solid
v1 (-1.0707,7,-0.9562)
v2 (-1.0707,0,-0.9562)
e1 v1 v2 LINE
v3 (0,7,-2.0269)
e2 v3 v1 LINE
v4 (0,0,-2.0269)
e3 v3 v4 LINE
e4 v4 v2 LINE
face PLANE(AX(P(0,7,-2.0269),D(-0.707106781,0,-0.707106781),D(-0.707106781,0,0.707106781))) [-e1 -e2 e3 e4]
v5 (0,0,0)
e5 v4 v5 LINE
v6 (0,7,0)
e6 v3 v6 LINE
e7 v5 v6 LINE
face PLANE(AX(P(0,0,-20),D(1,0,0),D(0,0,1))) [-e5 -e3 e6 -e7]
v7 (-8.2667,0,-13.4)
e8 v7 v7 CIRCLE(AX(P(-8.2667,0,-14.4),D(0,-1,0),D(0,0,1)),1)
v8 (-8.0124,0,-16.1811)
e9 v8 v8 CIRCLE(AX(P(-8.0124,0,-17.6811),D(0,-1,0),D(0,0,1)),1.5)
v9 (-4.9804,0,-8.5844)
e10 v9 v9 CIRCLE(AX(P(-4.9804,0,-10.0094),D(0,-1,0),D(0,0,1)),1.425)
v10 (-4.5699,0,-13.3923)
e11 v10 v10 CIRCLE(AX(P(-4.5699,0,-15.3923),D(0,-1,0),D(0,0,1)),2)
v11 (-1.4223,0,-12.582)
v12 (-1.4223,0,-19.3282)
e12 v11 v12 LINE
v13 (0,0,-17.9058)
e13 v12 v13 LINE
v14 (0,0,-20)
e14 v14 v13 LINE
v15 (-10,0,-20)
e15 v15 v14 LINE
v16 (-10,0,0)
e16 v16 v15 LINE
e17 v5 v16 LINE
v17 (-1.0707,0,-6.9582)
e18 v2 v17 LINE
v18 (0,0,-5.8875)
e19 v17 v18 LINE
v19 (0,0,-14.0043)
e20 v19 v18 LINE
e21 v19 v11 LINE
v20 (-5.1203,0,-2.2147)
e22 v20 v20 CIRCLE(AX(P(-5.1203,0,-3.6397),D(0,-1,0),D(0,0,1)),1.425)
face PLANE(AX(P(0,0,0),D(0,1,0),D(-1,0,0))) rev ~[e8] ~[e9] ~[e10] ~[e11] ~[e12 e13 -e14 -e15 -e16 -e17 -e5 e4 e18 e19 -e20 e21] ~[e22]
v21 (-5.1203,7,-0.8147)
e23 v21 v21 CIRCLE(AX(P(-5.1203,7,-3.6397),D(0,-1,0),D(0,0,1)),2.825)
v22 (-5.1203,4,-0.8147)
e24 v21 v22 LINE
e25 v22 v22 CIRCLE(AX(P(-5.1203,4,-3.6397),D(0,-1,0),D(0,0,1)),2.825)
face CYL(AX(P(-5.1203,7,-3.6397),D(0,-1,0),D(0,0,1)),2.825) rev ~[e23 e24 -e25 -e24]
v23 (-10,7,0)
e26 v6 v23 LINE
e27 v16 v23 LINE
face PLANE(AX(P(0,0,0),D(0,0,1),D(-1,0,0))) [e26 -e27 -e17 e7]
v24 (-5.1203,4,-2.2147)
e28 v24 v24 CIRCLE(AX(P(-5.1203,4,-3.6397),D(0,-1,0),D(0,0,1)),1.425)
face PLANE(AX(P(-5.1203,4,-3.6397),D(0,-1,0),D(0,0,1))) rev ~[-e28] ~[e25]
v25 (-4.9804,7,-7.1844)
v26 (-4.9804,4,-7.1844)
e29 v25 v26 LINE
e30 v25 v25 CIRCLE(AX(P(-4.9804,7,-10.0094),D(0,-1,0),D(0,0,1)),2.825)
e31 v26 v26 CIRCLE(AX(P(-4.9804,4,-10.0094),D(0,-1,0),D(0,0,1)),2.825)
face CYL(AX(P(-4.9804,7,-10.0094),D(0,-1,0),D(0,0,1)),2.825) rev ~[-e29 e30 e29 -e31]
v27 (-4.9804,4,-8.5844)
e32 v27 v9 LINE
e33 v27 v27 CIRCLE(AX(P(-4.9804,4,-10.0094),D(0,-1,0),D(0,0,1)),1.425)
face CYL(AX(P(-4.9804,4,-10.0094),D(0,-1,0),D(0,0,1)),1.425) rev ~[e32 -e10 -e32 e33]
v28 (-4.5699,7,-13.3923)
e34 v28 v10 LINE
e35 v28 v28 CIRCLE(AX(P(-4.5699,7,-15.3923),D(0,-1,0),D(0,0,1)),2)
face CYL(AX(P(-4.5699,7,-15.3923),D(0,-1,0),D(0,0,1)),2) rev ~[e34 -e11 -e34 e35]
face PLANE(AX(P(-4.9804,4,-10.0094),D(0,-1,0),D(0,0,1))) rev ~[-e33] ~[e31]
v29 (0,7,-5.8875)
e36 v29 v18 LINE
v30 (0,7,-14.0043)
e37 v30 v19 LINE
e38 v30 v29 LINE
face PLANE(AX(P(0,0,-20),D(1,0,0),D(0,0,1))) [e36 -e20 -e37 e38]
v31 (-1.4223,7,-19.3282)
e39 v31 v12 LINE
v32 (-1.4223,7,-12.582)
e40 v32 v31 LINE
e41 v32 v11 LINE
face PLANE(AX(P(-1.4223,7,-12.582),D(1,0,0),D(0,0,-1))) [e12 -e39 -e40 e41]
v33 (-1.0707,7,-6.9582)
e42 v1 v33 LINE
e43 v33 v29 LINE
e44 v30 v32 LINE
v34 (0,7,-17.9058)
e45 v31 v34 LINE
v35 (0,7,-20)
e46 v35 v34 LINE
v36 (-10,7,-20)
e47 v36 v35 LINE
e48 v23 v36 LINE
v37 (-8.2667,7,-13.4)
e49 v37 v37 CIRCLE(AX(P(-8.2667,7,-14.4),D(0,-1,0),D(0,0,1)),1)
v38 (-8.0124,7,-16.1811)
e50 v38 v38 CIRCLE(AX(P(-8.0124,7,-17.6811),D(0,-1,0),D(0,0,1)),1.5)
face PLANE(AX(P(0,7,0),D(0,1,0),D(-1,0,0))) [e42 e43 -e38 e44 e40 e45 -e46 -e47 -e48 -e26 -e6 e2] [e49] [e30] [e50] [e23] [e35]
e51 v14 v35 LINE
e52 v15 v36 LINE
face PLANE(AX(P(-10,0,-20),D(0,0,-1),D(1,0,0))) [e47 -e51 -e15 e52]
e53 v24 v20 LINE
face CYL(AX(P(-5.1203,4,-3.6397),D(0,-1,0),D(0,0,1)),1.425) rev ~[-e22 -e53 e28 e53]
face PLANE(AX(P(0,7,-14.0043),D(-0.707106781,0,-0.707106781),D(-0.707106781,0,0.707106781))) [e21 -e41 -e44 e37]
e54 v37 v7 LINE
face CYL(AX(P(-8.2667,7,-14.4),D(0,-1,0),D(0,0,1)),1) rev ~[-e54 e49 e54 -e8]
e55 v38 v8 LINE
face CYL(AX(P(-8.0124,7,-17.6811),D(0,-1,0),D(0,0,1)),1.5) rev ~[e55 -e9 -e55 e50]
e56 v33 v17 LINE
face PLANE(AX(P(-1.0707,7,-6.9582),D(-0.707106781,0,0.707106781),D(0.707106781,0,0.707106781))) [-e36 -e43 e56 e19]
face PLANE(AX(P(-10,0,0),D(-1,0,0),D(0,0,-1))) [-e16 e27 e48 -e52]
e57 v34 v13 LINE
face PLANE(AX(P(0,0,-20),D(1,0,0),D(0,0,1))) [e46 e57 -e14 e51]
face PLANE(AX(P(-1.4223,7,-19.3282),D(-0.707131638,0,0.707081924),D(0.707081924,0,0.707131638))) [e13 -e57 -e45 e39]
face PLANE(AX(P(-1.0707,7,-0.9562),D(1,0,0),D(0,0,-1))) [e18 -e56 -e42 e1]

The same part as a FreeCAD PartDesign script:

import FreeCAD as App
import Part
import Sketcher
from FreeCAD import Vector
Q = App.Units.Quantity


def add_polygon(sketch, points):
    """Adds a closed chain of lines whose ends are joined by coincident constraints."""
    first, n = sketch.GeometryCount, len(points)
    for a, b in zip(points, points[1:] + points[:1]):
        sketch.addGeometry(Part.LineSegment(App.Vector(*a, 0), App.Vector(*b, 0)), False)
    for i in range(n):
        sketch.addConstraint(Sketcher.Constraint("Coincident", first + i, 2, first + (i + 1) % n, 1))

doc = App.newDocument("Part")
params = doc.addObject("Spreadsheet::Sheet", "Params")
for row, (alias, value) in enumerate([
    ("sketch1_width", "10 mm"),
    ("sketch1_height", "20 mm"),
    ("pad1_length", "7 mm"),
    ("sketch2_diameter", "2.85 mm"),
    ("hole_diameter", "2.85 mm"),
    ("hole_depth", "13.15 mm"),
    ("hole_cbore_diameter", "5.65 mm"),
    ("hole_cbore_depth", "3 mm"),
    ("sketch3_diameter", "2.85 mm"),
    ("hole2_diameter", "2.85 mm"),
    ("hole2_depth", "9.05 mm"),
    ("hole2_cbore_diameter", "5.65 mm"),
    ("hole2_cbore_depth", "3 mm"),
    ("sketch4_diameter", "3 mm"),
    ("hole3_diameter", "3 mm"),
    ("sketch5_diameter", "2 mm"),
    ("hole4_diameter", "2 mm"),
    ("sketch6_diameter", "4 mm"),
    ("hole5_diameter", "4 mm"),
    ("pocket2_length", "7 mm"),
], start=1):
    params.set(f"A{row}", alias)
    params.set(f"B{row}", "=" + value)
    params.setAlias(f"B{row}", alias)

body = doc.addObject("PartDesign::Body", "Body")

sketch1 = body.newObject("Sketcher::SketchObject", "Sketch")
sketch1.AttachmentSupport = (doc.getObject("XZ_Plane"), [""])
sketch1.MapMode = "FlatFace"
add_polygon(sketch1, [(-10, 0), (0, 0), (0, -20), (-10, -20)])
sketch1.addConstraint(Sketcher.Constraint("Horizontal", 0))
sketch1.addConstraint(Sketcher.Constraint("Vertical", 1))
sketch1.addConstraint(Sketcher.Constraint("Horizontal", 2))
sketch1.addConstraint(Sketcher.Constraint("Vertical", 3))
sketch1.addConstraint(Sketcher.Constraint("Coincident", 0, 2, -1, 1))
sketch1.addConstraint(Sketcher.Constraint("DistanceX", 0, 1, 0, 2, Q("10 mm")))
sketch1.addConstraint(Sketcher.Constraint("DistanceY", 1, 2, 1, 1, Q("20 mm")))
sketch1.setExpression("Constraints[9]", "Params.sketch1_width")
sketch1.setExpression("Constraints[10]", "Params.sketch1_height")
pad1 = body.newObject("PartDesign::Pad", "Pad")
pad1.Profile = sketch1
pad1.setExpression("Length", "Params.pad1_length")
pad1.Reversed = True

sketch2 = body.newObject("Sketcher::SketchObject", "Sketch001")
sketch2.AttachmentSupport = (doc.getObject("XZ_Plane"), [""])
sketch2.MapMode = "FlatFace"
sketch2.AttachmentOffset = App.Placement(Vector(0, 0, -7), App.Rotation())
sketch2.addGeometry(Part.Circle(Vector(-5.1203, -3.6397, 0), Vector(0, 0, 1), 1.425), False)
sketch2.addConstraint(Sketcher.Constraint("Diameter", 0, Q("2.85 mm")))
sketch2.addConstraint(Sketcher.Constraint("DistanceX", 0, 3, -1, 1, Q("5.1203 mm")))
sketch2.addConstraint(Sketcher.Constraint("DistanceY", 0, 3, -1, 1, Q("3.6397 mm")))
sketch2.setExpression("Constraints[0]", "Params.sketch2_diameter")
doc.recompute()
hole = body.newObject("PartDesign::Hole", "Hole")
hole.Profile = sketch2
hole.ThreadType = "None"
hole.setExpression("Diameter", "Params.hole_diameter")
hole.DepthType = "Dimension"
hole.setExpression("Depth", "Params.hole_depth")
hole.DrillPoint = "Flat"
hole.HoleCutType = "Counterbore"
hole.setExpression("HoleCutDiameter", "Params.hole_cbore_diameter")
hole.setExpression("HoleCutDepth", "Params.hole_cbore_depth")
hole.Reversed = True

sketch3 = body.newObject("Sketcher::SketchObject", "Sketch002")
sketch3.AttachmentSupport = (doc.getObject("XZ_Plane"), [""])
sketch3.MapMode = "FlatFace"
sketch3.AttachmentOffset = App.Placement(Vector(0, 0, -7), App.Rotation())
sketch3.addGeometry(Part.Circle(Vector(-4.9804, -10.0094, 0), Vector(0, 0, 1), 1.425), False)
sketch3.addConstraint(Sketcher.Constraint("Diameter", 0, Q("2.85 mm")))
sketch3.addConstraint(Sketcher.Constraint("DistanceX", 0, 3, -1, 1, Q("4.9804 mm")))
sketch3.addConstraint(Sketcher.Constraint("DistanceY", 0, 3, -1, 1, Q("10.0094 mm")))
sketch3.setExpression("Constraints[0]", "Params.sketch3_diameter")
doc.recompute()
hole2 = body.newObject("PartDesign::Hole", "Hole001")
hole2.Profile = sketch3
hole2.ThreadType = "None"
hole2.setExpression("Diameter", "Params.hole2_diameter")
hole2.DepthType = "Dimension"
hole2.setExpression("Depth", "Params.hole2_depth")
hole2.DrillPoint = "Flat"
hole2.HoleCutType = "Counterbore"
hole2.setExpression("HoleCutDiameter", "Params.hole2_cbore_diameter")
hole2.setExpression("HoleCutDepth", "Params.hole2_cbore_depth")
hole2.Reversed = True

sketch4 = body.newObject("Sketcher::SketchObject", "Sketch003")
sketch4.AttachmentSupport = (doc.getObject("XZ_Plane"), [""])
sketch4.MapMode = "FlatFace"
sketch4.AttachmentOffset = App.Placement(Vector(0, 0, -7), App.Rotation())
sketch4.addGeometry(Part.Circle(Vector(-8.0124, -17.6811, 0), Vector(0, 0, 1), 1.5), False)
sketch4.addConstraint(Sketcher.Constraint("Diameter", 0, Q("3 mm")))
sketch4.addConstraint(Sketcher.Constraint("DistanceY", 0, 3, -1, 1, Q("17.681 mm")))
sketch4.addConstraint(Sketcher.Constraint("DistanceX", 0, 3, -1, 1, Q("8.0124 mm")))
sketch4.setExpression("Constraints[0]", "Params.sketch4_diameter")
doc.recompute()
hole3 = body.newObject("PartDesign::Hole", "Hole002")
hole3.Profile = sketch4
hole3.ThreadType = "None"
hole3.setExpression("Diameter", "Params.hole3_diameter")
hole3.DepthType = "ThroughAll"
hole3.Reversed = True

sketch5 = body.newObject("Sketcher::SketchObject", "Sketch004")
sketch5.AttachmentSupport = (doc.getObject("XZ_Plane"), [""])
sketch5.MapMode = "FlatFace"
sketch5.AttachmentOffset = App.Placement(Vector(0, 0, -7), App.Rotation())
sketch5.addGeometry(Part.Circle(Vector(-8.2667, -14.4, 0), Vector(0, 0, 1), 1), False)
sketch5.addConstraint(Sketcher.Constraint("Diameter", 0, Q("2 mm")))
sketch5.addConstraint(Sketcher.Constraint("DistanceY", 0, 3, -1, 1, Q("14.4 mm")))
sketch5.addConstraint(Sketcher.Constraint("DistanceX", 0, 3, -1, 1, Q("8.2667 mm")))
sketch5.setExpression("Constraints[0]", "Params.sketch5_diameter")
doc.recompute()
hole4 = body.newObject("PartDesign::Hole", "Hole003")
hole4.Profile = sketch5
hole4.ThreadType = "None"
hole4.setExpression("Diameter", "Params.hole4_diameter")
hole4.DepthType = "ThroughAll"
hole4.Reversed = True

sketch6 = body.newObject("Sketcher::SketchObject", "Sketch005")
sketch6.AttachmentSupport = (doc.getObject("XZ_Plane"), [""])
sketch6.MapMode = "FlatFace"
sketch6.AttachmentOffset = App.Placement(Vector(0, 0, -7), App.Rotation())
sketch6.addGeometry(Part.Circle(Vector(-4.5699, -15.3923, 0), Vector(0, 0, 1), 2), False)
sketch6.addConstraint(Sketcher.Constraint("Diameter", 0, Q("4 mm")))
sketch6.addConstraint(Sketcher.Constraint("DistanceX", 0, 3, -1, 1, Q("4.57 mm")))
sketch6.addConstraint(Sketcher.Constraint("DistanceY", 0, 3, -1, 1, Q("15.3923 mm")))
sketch6.setExpression("Constraints[0]", "Params.sketch6_diameter")
doc.recompute()
hole5 = body.newObject("PartDesign::Hole", "Hole004")
hole5.Profile = sketch6
hole5.ThreadType = "None"
hole5.setExpression("Diameter", "Params.hole5_diameter")
hole5.DepthType = "ThroughAll"
hole5.Reversed = True

sketch7 = body.newObject("Sketcher::SketchObject", "Sketch006")
sketch7.AttachmentSupport = (doc.getObject("XZ_Plane"), [""])
sketch7.MapMode = "FlatFace"
sketch7.AttachmentOffset = App.Placement(Vector(0, 0, -7), App.Rotation())
add_polygon(sketch7, [(-1.4223, -12.582), (0, -14.0043), (0, -17.9058), (-1.4223, -19.3282)])
sketch7.addConstraint(Sketcher.Constraint("Vertical", 1))
sketch7.addConstraint(Sketcher.Constraint("Vertical", 3))
sketch7.addConstraint(Sketcher.Constraint("PointOnObject", 0, 2, -2))
sketch7.addConstraint(Sketcher.Constraint("Perpendicular", 0, 2))
sketch7.addConstraint(Sketcher.Constraint("Equal", 0, 2))
sketch7.addConstraint(Sketcher.Constraint("DistanceY", 3, 1, 3, 2, Q("6.7462 mm")))
sketch7.addConstraint(Sketcher.Constraint("DistanceX", 2, 2, -1, 1, Q("1.4223 mm")))
sketch7.addConstraint(Sketcher.Constraint("DistanceY", 3, 2, -1, 1, Q("12.582 mm")))
pocket1 = body.newObject("PartDesign::Pocket", "Pocket")
pocket1.Profile = sketch7
pocket1.Type = "ThroughAll"
pocket1.Reversed = True

sketch8 = body.newObject("Sketcher::SketchObject", "Sketch007")
sketch8.AttachmentSupport = (doc.getObject("XZ_Plane"), [""])
sketch8.MapMode = "FlatFace"
sketch8.AttachmentOffset = App.Placement(Vector(0, 0, -7), App.Rotation())
add_polygon(sketch8, [(0, -2.0269), (0, -5.8875), (-1.0707, -6.9582), (-1.0707, -0.9562)])
sketch8.addConstraint(Sketcher.Constraint("Vertical", 0))
sketch8.addConstraint(Sketcher.Constraint("Vertical", 2))
sketch8.addConstraint(Sketcher.Constraint("PointOnObject", 0, 2, -2))
sketch8.addConstraint(Sketcher.Constraint("Perpendicular", 1, 3))
sketch8.addConstraint(Sketcher.Constraint("Equal", 1, 3))
sketch8.addConstraint(Sketcher.Constraint("DistanceY", 2, 1, 2, 2, Q("6.002 mm")))
sketch8.addConstraint(Sketcher.Constraint("DistanceX", 1, 2, -1, 1, Q("1.0707 mm")))
sketch8.addConstraint(Sketcher.Constraint("DistanceY", 3, 2, -1, 1, Q("2.027 mm")))
pocket2 = body.newObject("PartDesign::Pocket", "Pocket001")
pocket2.Profile = sketch8
pocket2.setExpression("Length", "Params.pocket2_length")
pocket2.Reversed = True

doc.recompute()
